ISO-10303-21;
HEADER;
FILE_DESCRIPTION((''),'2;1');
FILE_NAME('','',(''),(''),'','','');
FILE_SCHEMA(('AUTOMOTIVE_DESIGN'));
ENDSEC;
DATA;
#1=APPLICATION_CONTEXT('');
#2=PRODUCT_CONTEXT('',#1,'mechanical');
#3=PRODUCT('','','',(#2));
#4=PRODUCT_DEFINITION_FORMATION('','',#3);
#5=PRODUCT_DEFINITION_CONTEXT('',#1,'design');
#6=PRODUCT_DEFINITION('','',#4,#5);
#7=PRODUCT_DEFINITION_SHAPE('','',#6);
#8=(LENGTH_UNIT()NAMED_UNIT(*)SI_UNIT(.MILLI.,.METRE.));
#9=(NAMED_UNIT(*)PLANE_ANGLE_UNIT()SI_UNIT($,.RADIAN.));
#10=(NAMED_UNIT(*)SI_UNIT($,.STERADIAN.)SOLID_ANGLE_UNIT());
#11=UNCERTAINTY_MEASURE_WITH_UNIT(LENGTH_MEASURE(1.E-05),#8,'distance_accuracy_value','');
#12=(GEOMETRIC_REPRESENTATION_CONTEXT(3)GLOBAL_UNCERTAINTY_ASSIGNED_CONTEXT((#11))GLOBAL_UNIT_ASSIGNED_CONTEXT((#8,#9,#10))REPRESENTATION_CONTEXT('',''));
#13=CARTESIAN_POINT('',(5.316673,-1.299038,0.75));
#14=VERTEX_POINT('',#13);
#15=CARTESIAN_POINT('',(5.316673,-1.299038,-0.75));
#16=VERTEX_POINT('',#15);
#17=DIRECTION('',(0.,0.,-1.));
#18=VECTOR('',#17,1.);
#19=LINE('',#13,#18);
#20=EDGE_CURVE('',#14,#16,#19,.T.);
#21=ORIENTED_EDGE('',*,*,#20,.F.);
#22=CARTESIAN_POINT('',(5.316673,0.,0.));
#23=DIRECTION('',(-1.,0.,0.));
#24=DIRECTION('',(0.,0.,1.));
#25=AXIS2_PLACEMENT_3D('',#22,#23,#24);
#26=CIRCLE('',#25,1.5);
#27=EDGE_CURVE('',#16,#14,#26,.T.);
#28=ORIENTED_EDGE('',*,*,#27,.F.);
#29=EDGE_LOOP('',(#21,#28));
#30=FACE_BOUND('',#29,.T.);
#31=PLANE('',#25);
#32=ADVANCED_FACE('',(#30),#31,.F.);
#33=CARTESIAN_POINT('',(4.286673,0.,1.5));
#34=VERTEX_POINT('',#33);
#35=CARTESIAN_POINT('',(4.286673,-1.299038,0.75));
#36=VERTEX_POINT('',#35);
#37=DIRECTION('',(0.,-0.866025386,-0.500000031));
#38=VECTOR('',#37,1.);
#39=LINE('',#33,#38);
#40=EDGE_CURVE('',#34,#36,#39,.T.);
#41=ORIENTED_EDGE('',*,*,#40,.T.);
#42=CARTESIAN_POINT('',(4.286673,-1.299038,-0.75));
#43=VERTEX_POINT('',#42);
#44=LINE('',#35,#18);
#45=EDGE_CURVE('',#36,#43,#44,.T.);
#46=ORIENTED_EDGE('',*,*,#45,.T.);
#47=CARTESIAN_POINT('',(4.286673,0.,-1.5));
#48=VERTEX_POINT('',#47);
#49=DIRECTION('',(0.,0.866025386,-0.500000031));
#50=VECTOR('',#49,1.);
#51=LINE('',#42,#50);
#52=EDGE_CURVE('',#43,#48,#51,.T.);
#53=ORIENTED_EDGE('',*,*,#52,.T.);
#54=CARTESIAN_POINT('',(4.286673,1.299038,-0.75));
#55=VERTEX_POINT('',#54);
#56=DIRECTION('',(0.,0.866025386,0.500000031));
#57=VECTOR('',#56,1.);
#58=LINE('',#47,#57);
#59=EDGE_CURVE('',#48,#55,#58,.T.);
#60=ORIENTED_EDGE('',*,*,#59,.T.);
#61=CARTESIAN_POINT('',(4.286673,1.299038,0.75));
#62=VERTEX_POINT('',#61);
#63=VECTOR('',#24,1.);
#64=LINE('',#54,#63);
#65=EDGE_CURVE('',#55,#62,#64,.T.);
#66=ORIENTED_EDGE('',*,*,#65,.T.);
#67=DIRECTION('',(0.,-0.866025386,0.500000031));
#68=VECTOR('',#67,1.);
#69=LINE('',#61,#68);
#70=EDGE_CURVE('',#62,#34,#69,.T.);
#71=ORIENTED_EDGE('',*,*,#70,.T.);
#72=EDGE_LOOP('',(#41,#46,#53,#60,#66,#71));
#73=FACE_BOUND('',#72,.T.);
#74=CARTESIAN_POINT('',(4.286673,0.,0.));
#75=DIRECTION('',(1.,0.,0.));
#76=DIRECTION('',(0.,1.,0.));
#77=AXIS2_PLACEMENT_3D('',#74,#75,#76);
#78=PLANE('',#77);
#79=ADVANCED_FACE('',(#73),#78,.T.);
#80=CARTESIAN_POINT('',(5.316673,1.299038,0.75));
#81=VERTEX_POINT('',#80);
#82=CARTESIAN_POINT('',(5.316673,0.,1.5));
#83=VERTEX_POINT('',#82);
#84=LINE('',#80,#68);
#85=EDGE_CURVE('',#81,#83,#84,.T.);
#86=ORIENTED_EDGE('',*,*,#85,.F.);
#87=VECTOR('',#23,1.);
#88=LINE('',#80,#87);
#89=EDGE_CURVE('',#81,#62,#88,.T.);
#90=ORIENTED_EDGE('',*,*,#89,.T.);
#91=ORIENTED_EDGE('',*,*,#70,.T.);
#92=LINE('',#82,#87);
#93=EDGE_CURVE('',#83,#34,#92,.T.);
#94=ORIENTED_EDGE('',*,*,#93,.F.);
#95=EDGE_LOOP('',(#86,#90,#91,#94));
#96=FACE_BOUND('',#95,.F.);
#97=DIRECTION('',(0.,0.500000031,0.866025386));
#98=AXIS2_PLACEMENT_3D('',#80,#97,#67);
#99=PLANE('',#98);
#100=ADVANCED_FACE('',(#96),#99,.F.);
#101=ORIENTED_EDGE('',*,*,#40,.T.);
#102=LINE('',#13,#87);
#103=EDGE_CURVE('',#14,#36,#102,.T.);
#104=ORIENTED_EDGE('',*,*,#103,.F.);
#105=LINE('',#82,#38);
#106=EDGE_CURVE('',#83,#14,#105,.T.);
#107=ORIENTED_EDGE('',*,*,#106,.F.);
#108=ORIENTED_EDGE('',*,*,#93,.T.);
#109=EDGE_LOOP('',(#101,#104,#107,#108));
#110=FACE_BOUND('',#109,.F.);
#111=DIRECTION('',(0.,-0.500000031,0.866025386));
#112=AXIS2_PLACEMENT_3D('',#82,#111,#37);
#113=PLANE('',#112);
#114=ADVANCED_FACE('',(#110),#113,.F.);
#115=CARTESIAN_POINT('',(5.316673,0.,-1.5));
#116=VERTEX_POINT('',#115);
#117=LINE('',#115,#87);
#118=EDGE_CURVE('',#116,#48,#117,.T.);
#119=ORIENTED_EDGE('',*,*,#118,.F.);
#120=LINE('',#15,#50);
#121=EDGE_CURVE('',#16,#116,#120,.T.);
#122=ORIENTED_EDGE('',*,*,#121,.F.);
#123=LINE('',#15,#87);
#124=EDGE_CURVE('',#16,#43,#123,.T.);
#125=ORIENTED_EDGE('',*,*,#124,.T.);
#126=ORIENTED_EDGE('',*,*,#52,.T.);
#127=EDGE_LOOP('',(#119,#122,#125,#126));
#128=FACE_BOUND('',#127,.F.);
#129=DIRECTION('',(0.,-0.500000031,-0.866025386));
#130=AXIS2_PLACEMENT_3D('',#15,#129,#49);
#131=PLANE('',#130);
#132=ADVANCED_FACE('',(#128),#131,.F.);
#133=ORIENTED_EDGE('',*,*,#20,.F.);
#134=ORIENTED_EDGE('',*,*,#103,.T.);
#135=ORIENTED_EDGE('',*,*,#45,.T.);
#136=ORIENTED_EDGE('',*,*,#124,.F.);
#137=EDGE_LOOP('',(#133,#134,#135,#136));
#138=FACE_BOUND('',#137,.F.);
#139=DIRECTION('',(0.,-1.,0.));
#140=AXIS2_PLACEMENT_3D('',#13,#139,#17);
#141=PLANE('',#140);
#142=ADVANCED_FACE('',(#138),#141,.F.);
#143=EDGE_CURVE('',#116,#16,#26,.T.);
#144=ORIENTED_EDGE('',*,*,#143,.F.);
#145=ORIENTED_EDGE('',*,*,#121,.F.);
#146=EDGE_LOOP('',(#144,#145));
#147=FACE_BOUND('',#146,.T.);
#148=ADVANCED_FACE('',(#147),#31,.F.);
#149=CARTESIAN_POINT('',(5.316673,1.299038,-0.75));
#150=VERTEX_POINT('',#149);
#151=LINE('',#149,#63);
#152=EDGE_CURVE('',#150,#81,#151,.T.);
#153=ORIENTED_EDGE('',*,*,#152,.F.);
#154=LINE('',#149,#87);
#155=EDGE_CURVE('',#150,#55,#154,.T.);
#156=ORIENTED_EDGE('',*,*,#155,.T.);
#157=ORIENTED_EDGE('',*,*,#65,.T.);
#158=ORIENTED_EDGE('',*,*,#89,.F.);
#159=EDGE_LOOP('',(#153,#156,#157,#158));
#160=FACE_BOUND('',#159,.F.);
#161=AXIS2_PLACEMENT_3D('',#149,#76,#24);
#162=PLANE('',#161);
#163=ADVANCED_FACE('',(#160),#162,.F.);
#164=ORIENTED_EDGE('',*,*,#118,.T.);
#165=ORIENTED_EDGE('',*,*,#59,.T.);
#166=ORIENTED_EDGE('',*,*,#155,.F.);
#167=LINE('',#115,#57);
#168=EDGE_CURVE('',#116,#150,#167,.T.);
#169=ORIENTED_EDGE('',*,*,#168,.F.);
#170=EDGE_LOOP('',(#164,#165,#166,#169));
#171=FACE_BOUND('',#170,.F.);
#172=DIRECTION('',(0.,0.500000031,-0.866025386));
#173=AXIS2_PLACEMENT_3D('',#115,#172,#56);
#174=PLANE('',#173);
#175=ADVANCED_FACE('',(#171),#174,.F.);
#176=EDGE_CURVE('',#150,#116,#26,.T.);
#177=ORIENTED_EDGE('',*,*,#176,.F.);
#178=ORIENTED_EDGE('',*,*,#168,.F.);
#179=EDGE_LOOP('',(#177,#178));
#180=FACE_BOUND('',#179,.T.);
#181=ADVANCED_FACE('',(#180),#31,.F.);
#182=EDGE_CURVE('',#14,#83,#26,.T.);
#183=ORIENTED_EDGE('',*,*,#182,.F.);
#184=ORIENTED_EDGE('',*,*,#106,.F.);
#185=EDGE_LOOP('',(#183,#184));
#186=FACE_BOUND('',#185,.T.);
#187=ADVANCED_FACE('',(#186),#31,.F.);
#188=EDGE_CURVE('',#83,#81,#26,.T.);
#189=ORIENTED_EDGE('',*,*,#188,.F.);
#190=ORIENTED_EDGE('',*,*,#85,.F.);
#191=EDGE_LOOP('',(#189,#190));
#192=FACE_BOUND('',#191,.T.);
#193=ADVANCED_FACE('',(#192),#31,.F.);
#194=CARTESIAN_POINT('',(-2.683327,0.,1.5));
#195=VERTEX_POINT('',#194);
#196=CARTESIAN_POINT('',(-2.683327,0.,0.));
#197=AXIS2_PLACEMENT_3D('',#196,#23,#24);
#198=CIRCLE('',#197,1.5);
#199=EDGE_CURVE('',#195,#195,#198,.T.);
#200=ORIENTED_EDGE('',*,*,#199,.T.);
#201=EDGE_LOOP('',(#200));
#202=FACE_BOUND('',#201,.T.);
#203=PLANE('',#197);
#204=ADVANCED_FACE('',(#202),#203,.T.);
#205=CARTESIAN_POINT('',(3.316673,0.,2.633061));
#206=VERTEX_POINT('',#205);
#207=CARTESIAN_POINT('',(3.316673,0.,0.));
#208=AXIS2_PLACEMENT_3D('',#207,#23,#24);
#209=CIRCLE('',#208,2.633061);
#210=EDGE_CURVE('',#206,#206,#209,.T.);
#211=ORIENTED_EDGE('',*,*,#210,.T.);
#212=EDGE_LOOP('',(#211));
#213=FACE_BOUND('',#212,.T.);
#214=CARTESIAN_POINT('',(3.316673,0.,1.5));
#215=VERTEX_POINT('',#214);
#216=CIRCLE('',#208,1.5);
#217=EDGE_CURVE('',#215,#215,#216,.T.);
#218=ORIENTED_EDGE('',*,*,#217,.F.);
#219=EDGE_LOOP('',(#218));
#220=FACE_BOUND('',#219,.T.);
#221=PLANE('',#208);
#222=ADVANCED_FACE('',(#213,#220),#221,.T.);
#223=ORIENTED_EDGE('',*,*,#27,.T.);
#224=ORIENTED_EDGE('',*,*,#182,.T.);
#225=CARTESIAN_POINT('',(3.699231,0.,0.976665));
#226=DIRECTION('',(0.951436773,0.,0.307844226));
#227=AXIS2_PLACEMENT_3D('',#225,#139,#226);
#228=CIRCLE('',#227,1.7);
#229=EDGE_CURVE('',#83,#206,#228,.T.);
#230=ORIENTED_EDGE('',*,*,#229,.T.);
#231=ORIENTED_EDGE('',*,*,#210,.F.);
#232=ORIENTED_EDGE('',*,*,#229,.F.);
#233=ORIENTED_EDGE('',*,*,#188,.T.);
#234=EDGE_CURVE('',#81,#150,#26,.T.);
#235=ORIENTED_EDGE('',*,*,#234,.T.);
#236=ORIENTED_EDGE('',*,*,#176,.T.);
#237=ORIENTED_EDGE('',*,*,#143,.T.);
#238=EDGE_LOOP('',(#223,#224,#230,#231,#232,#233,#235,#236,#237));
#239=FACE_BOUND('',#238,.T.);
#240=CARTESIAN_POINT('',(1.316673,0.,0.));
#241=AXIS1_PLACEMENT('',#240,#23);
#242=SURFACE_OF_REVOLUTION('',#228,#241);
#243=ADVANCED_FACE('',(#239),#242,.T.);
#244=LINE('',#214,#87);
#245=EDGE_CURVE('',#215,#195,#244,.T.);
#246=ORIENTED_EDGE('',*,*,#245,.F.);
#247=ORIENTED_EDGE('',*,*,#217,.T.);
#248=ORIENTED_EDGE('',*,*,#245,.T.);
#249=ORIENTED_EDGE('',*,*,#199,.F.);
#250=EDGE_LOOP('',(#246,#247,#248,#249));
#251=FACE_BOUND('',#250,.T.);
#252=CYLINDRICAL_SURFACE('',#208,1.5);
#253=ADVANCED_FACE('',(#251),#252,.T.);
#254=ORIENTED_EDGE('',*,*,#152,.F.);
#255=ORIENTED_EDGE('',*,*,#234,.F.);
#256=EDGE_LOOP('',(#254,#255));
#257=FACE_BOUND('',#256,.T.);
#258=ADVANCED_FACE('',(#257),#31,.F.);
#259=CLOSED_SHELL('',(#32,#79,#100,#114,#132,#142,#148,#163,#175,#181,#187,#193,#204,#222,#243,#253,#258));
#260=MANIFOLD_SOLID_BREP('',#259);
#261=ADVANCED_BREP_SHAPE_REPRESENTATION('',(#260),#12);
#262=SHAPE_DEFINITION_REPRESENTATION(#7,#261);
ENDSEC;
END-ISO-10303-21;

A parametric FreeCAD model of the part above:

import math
import FreeCAD as App
import Part
import Sketcher

V = App.Vector
Q = App.Units.Quantity


def add_polygon(sketch, points):
    """Adds a closed chain of lines whose ends are joined by coincident constraints."""
    first, n = sketch.GeometryCount, len(points)
    for a, b in zip(points, points[1:] + points[:1]):
        sketch.addGeometry(Part.LineSegment(App.Vector(*a, 0), App.Vector(*b, 0)), False)
    for i in range(n):
        sketch.addConstraint(Sketcher.Constraint("Coincident", first + i, 2, first + (i + 1) % n, 1))

doc = App.newDocument("Part")
params = doc.addObject("Spreadsheet::Sheet", "Params")
for row, (alias, value) in enumerate([
    ("sketch1_radius", "1.7 mm"),
    ("sketch1_width", "8 mm"),
    ("sketch1_width2", "6 mm"),
    ("sketch1_height", "1.5 mm"),
    ("revolution_angle", "360 deg"),
    ("sketch2_height", "1.5 mm"),
    ("pocket1_length", "1.03 mm"),
], start=1):
    params.set(f"A{row}", alias)
    params.set(f"B{row}", "=" + value)
    params.setAlias(f"B{row}", alias)

body = doc.addObject("PartDesign::Body", "Body")

# Sketch on XZ plane
sketch1 = body.newObject("Sketcher::SketchObject", "Sketch")
sketch1.AttachmentSupport = (doc.getObject("XZ_Plane"), [""])
sketch1.MapMode = "FlatFace"
sketch1.addGeometry(Part.LineSegment(V(-2.7, 0, 0), V(5.3, 0, 0)), False)
sketch1.addGeometry(Part.LineSegment(V(5.3, 0, 0), V(5.3, 1.5, 0)), False)
sketch1.addGeometry(Part.ArcOfCircle(Part.Circle(V(3.7, 1, 0), V(0, 0, 1), 1.7), math.radians(18), math.radians(103)), False)
sketch1.addGeometry(Part.LineSegment(V(3.3, 2.6, 0), V(3.3, 1.5, 0)), False)
sketch1.addGeometry(Part.LineSegment(V(3.3, 1.5, 0), V(-2.7, 1.5, 0)), False)
sketch1.addGeometry(Part.LineSegment(V(-2.7, 1.5, 0), V(-2.7, 0, 0)), False)
sketch1.addConstraint(Sketcher.Constraint("Coincident", 0, 2, 1, 1))
sketch1.addConstraint(Sketcher.Constraint("Coincident", 1, 2, 2, 1))
sketch1.addConstraint(Sketcher.Constraint("Coincident", 2, 2, 3, 1))
sketch1.addConstraint(Sketcher.Constraint("Coincident", 3, 2, 4, 1))
sketch1.addConstraint(Sketcher.Constraint("Coincident", 4, 2, 5, 1))
sketch1.addConstraint(Sketcher.Constraint("Coincident", 5, 2, 0, 1))
sketch1.addConstraint(Sketcher.Constraint("Horizontal", 0))
sketch1.addConstraint(Sketcher.Constraint("Vertical", 1))
sketch1.addConstraint(Sketcher.Constraint("Vertical", 3))
sketch1.addConstraint(Sketcher.Constraint("Horizontal", 4))
sketch1.addConstraint(Sketcher.Constraint("Vertical", 5))
sketch1.addConstraint(Sketcher.Constraint("PointOnObject", 0, 2, -1))
sketch1.addConstraint(Sketcher.Constraint("Horizontal", 1, 2, 3, 2))
sketch1.addConstraint(Sketcher.Constraint("Radius", 2, 1.7))
sketch1.addConstraint(Sketcher.Constraint("DistanceX", 0, 1, 0, 2, 8.0))
sketch1.addConstraint(Sketcher.Constraint("DistanceX", 4, 2, 4, 1, 6.0))
sketch1.addConstraint(Sketcher.Constraint("DistanceY", 1, 1, 1, 2, 1.5))
sketch1.addConstraint(Sketcher.Constraint("DistanceY", 3, 2, 3, 1, 1.133061))
sketch1.addConstraint(Sketcher.Constraint("DistanceX", -1, 1, 2, 3, 3.699231))
sketch1.setExpression("Constraints[13]", "Params.sketch1_radius")
sketch1.setExpression("Constraints[14]", "Params.sketch1_width")
sketch1.setExpression("Constraints[15]", "Params.sketch1_width2")
sketch1.setExpression("Constraints[16]", "Params.sketch1_height")
revolution = body.newObject("PartDesign::Revolution", "Revolution")
revolution.Profile = sketch1
revolution.ReferenceAxis = (sketch1, ["H_Axis"])
revolution.setExpression("Angle", "Params.revolution_angle")

# Sketch on YZ plane
sketch2 = body.newObject("Sketcher::SketchObject", "Sketch001")
sketch2.AttachmentSupport = (doc.getObject("YZ_Plane"), [""])
sketch2.MapMode = "FlatFace"
sketch2.AttachmentOffset = App.Placement(V(0, 0, 5.316673), App.Rotation())
add_polygon(sketch2, [(0, -1.5), (1.3, -0.8), (1.3, 0.8), (0, 1.5), (-1.3, 0.8), (-1.3, -0.8)])  # lines 0-5
sketch2.addConstraint(Sketcher.Constraint("Vertical", 1))
sketch2.addConstraint(Sketcher.Constraint("Vertical", 4))
sketch2.addConstraint(Sketcher.Constraint("Symmetric", 0, 2, 3, 2, -1, 1))
sketch2.addConstraint(Sketcher.Constraint("Symmetric", 2, 2, 5, 2, -1, 1))
sketch2.addConstraint(Sketcher.Constraint("PointOnObject", 2, 2, -2))
sketch2.addConstraint(Sketcher.Constraint("Parallel", 2, 5))
sketch2.addConstraint(Sketcher.Constraint("Horizontal", 1, 2, 3, 2))
sketch2.addConstraint(Sketcher.Constraint("Angle", 0, Q("30.000002 deg")))
sketch2.addConstraint(Sketcher.Constraint("DistanceY", 1, 1, 1, 2, 1.5))
sketch2.addConstraint(Sketcher.Constraint("DistanceY", 5, 2, 2, 2, 3.0))
sketch2.setExpression("Constraints[14]", "Params.sketch2_height")
pocket1 = body.newObject("PartDesign::Pocket", "Pocket")
pocket1.Profile = sketch2
pocket1.setExpression("Length", "Params.pocket1_length")

doc.recompute()
